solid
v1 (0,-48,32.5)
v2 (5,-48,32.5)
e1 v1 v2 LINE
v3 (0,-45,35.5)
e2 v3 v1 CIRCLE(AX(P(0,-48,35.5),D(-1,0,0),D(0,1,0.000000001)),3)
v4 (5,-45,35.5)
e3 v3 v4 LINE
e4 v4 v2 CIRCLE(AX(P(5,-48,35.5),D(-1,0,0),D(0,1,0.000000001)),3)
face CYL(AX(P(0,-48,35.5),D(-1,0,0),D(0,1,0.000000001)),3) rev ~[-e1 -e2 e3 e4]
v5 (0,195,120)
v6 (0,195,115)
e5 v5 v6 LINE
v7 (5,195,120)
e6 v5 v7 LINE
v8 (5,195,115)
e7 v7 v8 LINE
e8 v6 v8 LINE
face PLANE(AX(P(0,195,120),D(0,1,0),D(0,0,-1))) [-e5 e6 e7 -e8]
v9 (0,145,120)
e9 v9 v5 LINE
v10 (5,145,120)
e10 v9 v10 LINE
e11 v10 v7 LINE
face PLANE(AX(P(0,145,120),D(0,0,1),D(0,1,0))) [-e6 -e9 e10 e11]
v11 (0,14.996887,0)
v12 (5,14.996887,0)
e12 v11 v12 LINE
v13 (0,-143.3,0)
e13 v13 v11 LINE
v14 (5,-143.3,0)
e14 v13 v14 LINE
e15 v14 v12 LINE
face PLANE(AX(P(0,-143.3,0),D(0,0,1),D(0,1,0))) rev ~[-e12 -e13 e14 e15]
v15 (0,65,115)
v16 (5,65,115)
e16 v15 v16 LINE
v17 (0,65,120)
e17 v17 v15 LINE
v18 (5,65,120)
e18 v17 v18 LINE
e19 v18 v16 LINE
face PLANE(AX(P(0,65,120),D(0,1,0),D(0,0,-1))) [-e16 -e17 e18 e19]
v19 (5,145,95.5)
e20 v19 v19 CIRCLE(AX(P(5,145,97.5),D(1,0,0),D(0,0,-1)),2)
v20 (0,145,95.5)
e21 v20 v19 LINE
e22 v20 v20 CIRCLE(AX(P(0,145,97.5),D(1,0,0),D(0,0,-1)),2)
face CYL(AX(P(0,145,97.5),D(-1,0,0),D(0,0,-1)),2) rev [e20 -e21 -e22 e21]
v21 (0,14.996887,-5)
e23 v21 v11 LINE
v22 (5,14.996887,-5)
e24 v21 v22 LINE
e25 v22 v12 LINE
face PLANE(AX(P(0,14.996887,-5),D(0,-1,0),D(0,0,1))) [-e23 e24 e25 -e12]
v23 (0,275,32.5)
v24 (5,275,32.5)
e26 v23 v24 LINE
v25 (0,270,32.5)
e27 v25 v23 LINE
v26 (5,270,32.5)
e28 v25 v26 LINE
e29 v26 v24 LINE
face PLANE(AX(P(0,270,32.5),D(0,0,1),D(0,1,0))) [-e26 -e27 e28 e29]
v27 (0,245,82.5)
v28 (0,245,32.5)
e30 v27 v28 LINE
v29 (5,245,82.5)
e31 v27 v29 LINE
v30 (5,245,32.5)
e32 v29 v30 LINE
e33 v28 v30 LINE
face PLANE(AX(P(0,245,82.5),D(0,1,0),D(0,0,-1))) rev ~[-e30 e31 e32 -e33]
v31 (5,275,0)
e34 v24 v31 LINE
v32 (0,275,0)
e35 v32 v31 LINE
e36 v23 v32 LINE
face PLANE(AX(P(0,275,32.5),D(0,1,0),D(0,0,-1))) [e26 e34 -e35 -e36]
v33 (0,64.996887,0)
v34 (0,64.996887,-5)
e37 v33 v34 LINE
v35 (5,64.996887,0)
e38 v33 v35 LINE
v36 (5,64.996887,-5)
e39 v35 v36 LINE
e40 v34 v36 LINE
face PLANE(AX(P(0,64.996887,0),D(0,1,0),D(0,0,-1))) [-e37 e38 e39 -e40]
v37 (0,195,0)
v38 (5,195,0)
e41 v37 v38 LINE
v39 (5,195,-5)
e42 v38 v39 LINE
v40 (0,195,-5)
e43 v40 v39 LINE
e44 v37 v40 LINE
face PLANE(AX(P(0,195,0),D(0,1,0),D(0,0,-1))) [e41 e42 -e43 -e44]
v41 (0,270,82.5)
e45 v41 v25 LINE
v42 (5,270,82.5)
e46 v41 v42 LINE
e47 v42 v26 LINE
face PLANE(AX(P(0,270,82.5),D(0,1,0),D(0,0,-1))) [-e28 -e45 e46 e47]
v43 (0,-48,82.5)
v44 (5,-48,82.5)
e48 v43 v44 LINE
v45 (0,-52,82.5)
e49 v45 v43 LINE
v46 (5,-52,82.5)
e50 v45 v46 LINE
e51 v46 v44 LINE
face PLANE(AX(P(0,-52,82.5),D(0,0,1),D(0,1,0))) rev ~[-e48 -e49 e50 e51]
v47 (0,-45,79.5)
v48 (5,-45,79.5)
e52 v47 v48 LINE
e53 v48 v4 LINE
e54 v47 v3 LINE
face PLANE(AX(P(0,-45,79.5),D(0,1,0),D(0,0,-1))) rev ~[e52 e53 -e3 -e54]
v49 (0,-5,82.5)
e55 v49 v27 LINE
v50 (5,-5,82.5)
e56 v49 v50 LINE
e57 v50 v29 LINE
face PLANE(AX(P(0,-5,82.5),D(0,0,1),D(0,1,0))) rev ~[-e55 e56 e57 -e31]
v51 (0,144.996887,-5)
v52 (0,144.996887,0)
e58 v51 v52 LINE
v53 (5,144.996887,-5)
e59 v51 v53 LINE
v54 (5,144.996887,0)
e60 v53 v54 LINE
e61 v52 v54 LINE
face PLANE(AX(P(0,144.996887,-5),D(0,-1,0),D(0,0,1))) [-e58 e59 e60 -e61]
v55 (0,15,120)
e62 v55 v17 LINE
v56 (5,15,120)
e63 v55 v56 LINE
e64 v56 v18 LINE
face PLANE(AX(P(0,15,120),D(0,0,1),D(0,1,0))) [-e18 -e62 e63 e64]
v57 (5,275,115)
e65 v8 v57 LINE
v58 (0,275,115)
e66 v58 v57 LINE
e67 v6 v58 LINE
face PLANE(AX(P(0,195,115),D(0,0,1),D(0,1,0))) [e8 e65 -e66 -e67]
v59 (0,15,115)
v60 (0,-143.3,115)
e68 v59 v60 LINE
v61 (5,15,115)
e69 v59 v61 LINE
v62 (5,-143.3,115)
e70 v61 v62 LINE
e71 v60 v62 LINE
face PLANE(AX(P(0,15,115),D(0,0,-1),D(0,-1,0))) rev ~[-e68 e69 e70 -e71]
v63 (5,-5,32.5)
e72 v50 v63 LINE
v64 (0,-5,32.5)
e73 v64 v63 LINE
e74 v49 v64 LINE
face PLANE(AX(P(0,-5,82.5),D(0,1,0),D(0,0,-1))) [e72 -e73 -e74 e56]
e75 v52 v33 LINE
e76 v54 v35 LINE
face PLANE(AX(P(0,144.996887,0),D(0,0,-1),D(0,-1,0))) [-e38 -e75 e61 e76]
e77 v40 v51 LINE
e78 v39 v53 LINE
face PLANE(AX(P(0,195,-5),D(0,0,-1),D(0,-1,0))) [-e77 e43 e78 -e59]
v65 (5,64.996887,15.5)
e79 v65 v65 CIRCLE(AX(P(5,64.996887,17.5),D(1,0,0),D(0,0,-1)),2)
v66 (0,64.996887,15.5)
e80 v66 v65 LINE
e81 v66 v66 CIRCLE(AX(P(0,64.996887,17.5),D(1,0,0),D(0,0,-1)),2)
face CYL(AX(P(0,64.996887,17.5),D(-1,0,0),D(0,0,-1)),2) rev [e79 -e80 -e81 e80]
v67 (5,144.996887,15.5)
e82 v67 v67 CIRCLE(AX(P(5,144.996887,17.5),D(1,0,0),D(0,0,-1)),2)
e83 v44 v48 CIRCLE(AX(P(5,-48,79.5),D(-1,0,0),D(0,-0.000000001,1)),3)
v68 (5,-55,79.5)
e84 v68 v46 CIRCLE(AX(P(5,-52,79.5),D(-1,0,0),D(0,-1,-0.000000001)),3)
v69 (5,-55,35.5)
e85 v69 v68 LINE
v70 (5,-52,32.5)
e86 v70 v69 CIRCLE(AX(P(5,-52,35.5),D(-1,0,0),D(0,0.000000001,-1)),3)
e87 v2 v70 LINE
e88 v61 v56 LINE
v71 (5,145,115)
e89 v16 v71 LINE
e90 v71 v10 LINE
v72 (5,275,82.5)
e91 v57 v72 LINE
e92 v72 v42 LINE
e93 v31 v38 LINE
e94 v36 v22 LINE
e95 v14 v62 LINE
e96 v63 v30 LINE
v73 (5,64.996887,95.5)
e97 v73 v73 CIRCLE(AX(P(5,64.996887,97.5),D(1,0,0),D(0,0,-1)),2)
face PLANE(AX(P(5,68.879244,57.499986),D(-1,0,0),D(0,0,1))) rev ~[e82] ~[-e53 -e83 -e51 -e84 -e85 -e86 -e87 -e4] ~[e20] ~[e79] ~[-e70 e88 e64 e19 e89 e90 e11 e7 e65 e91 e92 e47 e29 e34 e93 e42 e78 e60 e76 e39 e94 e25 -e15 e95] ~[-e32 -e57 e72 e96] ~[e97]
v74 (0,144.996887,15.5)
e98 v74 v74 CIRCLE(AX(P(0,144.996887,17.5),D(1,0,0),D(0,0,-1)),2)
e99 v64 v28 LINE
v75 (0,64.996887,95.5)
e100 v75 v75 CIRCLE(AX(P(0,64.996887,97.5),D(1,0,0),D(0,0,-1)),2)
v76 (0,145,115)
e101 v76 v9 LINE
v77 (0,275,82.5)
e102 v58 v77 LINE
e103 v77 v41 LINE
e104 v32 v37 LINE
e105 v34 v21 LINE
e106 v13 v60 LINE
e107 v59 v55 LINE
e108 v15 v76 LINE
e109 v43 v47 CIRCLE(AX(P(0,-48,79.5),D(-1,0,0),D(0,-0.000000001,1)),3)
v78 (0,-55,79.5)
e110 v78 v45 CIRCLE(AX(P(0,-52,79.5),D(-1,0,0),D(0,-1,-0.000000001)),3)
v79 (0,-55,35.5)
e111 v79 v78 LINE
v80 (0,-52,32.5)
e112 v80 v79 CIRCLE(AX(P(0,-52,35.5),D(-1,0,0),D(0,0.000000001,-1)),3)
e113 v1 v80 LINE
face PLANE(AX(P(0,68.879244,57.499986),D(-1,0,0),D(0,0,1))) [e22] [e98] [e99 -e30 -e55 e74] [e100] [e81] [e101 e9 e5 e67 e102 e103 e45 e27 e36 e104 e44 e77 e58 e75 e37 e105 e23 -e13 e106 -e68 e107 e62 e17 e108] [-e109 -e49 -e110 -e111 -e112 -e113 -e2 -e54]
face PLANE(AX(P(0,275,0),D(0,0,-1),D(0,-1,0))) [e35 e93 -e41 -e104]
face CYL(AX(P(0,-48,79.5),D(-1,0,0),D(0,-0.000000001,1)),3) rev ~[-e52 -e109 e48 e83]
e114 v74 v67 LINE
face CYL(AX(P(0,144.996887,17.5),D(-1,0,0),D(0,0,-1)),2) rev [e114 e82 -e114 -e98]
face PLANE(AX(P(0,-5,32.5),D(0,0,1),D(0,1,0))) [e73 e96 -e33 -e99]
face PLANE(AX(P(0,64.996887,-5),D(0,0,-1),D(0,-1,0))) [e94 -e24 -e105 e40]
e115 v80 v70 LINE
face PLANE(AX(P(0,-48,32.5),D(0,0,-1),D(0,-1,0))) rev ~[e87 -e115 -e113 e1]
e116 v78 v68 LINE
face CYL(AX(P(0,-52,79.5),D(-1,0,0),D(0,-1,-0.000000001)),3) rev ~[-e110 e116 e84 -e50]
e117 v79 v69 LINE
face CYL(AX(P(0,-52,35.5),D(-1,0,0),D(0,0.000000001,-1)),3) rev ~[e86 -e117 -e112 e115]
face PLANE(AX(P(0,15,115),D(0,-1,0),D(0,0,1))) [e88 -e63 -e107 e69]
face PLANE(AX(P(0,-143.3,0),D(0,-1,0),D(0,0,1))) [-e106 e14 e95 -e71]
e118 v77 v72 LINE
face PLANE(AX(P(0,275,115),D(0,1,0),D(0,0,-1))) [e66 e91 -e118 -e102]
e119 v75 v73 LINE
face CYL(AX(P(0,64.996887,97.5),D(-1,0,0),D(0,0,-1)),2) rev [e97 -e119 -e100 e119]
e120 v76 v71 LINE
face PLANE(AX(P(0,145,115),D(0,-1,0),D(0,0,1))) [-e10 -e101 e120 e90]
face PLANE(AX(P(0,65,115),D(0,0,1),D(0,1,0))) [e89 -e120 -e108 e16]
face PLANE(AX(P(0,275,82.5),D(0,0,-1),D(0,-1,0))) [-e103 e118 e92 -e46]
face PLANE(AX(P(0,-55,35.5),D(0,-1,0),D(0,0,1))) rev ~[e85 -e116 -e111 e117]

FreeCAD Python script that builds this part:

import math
import FreeCAD as App
import Part
import Sketcher


def add_polygon(sketch, points):
    """Adds a closed chain of lines whose ends are joined by coincident constraints."""
    first, n = sketch.GeometryCount, len(points)
    for a, b in zip(points, points[1:] + points[:1]):
        sketch.addGeometry(Part.LineSegment(App.Vector(*a, 0), App.Vector(*b, 0)), False)
    for i in range(n):
        sketch.addConstraint(Sketcher.Constraint("Coincident", first + i, 2, first + (i + 1) % n, 1))

doc = App.newDocument("Part")
body = doc.addObject("PartDesign::Body", "Body")

sketch1 = doc.addObject("Sketcher::SketchObject", "Sketch")
body.addObject(sketch1)
sketch1.AttachmentSupport = (doc.YZ_Plane, [""])
sketch1.MapMode = "FlatFace"
add_polygon(sketch1, [(275, 115), (195, 115), (195, 120), (145, 120), (145, 115), (65, 115), (65, 120), (15, 120), (15, 115), (-143.3, 115), (-143.3, 0), (15, 0), (15, -5), (65, -5), (65, 0), (145, 0), (145, -5), (195, -5), (195, 0), (275, 0), (275, 32.5), (270, 32.5), (270, 82.5), (275, 82.5)])
sketch1.addGeometry(Part.Circle(App.Vector(65, 17.5, 0), App.Vector(0, 0, 1), 2), False)
sketch1.addGeometry(Part.LineSegment(App.Vector(-45, 79.5, 0), App.Vector(-45, 35.5, 0)), False)
sketch1.addGeometry(Part.ArcOfCircle(Part.Circle(App.Vector(-48, 35.5, 0), App.Vector(0, 0, 1), 3), math.radians(-90), math.radians(0)), False)
sketch1.addGeometry(Part.LineSegment(App.Vector(-48, 32.5, 0), App.Vector(-52, 32.5, 0)), False)
sketch1.addGeometry(Part.ArcOfCircle(Part.Circle(App.Vector(-52, 35.5, 0), App.Vector(0, 0, 1), 3), math.radians(180), math.radians(270)), False)
sketch1.addGeometry(Part.LineSegment(App.Vector(-55, 35.5, 0), App.Vector(-55, 79.5, 0)), False)
sketch1.addGeometry(Part.ArcOfCircle(Part.Circle(App.Vector(-52, 79.5, 0), App.Vector(0, 0, 1), 3), math.radians(90), math.radians(180)), False)
sketch1.addGeometry(Part.LineSegment(App.Vector(-52, 82.5, 0), App.Vector(-48, 82.5, 0)), False)
sketch1.addGeometry(Part.ArcOfCircle(Part.Circle(App.Vector(-48, 79.5, 0), App.Vector(0, 0, 1), 3), math.radians(0), math.radians(90)), False)
sketch1.addGeometry(Part.Circle(App.Vector(65, 97.5, 0), App.Vector(0, 0, 1), 2), False)
sketch1.addGeometry(Part.Circle(App.Vector(145, 17.5, 0), App.Vector(0, 0, 1), 2), False)
add_polygon(sketch1, [(-5, 82.5), (245, 82.5), (245, 32.5), (-5, 32.5)])
sketch1.addGeometry(Part.Circle(App.Vector(145, 97.5, 0), App.Vector(0, 0, 1), 2), False)
sketch1.addConstraint([
    Sketcher.Constraint("Tangent", 25, 2, 26, 2),
    Sketcher.Constraint("Tangent", 26, 1, 27, 1),
    Sketcher.Constraint("Tangent", 27, 2, 28, 2),
    Sketcher.Constraint("Tangent", 28, 1, 29, 1),
    Sketcher.Constraint("Tangent", 29, 2, 30, 2),
    Sketcher.Constraint("Tangent", 30, 1, 31, 1),
    Sketcher.Constraint("Tangent", 31, 2, 32, 2),
    Sketcher.Constraint("Tangent", 32, 1, 25, 1),
    Sketcher.Constraint("Horizontal", 0),
    Sketcher.Constraint("Vertical", 1),
    Sketcher.Constraint("Horizontal", 2),
    Sketcher.Constraint("Vertical", 3),
    Sketcher.Constraint("Horizontal", 4),
    Sketcher.Constraint("Vertical", 5),
    Sketcher.Constraint("Horizontal", 6),
    Sketcher.Constraint("Vertical", 7),
    Sketcher.Constraint("Horizontal", 8),
    Sketcher.Constraint("Vertical", 9),
    Sketcher.Constraint("Horizontal", 10),
    Sketcher.Constraint("Vertical", 11),
    Sketcher.Constraint("Horizontal", 12),
    Sketcher.Constraint("Vertical", 13),
    Sketcher.Constraint("Horizontal", 14),
    Sketcher.Constraint("Vertical", 15),
    Sketcher.Constraint("Horizontal", 16),
    Sketcher.Constraint("Vertical", 17),
    Sketcher.Constraint("Horizontal", 18),
    Sketcher.Constraint("Vertical", 19),
    Sketcher.Constraint("Horizontal", 20),
    Sketcher.Constraint("Vertical", 21),
    Sketcher.Constraint("Horizontal", 22),
    Sketcher.Constraint("Vertical", 23),
    Sketcher.Constraint("Vertical", 25),
    Sketcher.Constraint("Horizontal", 27),
    Sketcher.Constraint("Vertical", 29),
    Sketcher.Constraint("Horizontal", 31),
    Sketcher.Constraint("Horizontal", 35),
    Sketcher.Constraint("Vertical", 36),
    Sketcher.Constraint("Horizontal", 37),
    Sketcher.Constraint("Vertical", 38),
    Sketcher.Constraint("Equal", 26, 28),
    Sketcher.Constraint("Equal", 28, 30),
    Sketcher.Constraint("Equal", 30, 32),
    Sketcher.Constraint("Equal", 24, 33),
    Sketcher.Constraint("Equal", 33, 34),
    Sketcher.Constraint("Equal", 34, 39),
    Sketcher.Constraint("PointOnObject", 9, 2, -1),
    Sketcher.Constraint("PointOnObject", 13, 2, -1),
    Sketcher.Constraint("PointOnObject", 17, 2, -1),
    Sketcher.Constraint("Horizontal", 24, 3, 34, 3),
    Sketcher.Constraint("Horizontal", 33, 3, 39, 3),
    Sketcher.Constraint("Horizontal", 0, 2, 3, 2),
    Sketcher.Constraint("Horizontal", 2, 2, 5, 2),
    Sketcher.Constraint("Horizontal", 4, 2, 7, 2),
    Sketcher.Constraint("Horizontal", 12, 2, 15, 2),
    Sketcher.Constraint("Horizontal", 20, 2, 26, 1),
    Sketcher.Constraint("Horizontal", 22, 2, 30, 1),
    Sketcher.Constraint("Horizontal", 31, 2, 35, 2),
    Sketcher.Constraint("Horizontal", 27, 2, 36, 2),
    Sketcher.Constraint("Vertical", 24, 3, 33, 3),
    Sketcher.Constraint("Vertical", 39, 3, 2, 2),
    Sketcher.Constraint("Vertical", 33, 3, 12, 2),
    Sketcher.Constraint("Vertical", 34, 3, 14, 2),
    Sketcher.Constraint("Vertical", 1, 2, 16, 2),
    Sketcher.Constraint("Vertical", 19, 2, 22, 2),
    Sketcher.Constraint("Equal", 0, 4),
    Sketcher.Constraint("Equal", 2, 6),
    Sketcher.Constraint("Equal", 6, 12),
    Sketcher.Constraint("Equal", 4, 14),
    Sketcher.Constraint("Equal", 22, 1),
    Sketcher.Constraint("Equal", 7, 11),
    Sketcher.Constraint("Equal", 12, 21),
    Sketcher.Constraint("Equal", 19, 23),
    Sketcher.Constraint("Diameter", 24, 4.0),
    Sketcher.Constraint("Radius", 26, 3.0),
    Sketcher.Constraint("DistanceX", 0, 2, 0, 1, 80.0),
    Sketcher.Constraint("DistanceX", 2, 2, 2, 1, 50.0),
    Sketcher.Constraint("DistanceX", 20, 2, 20, 1, 5.0),
    Sketcher.Constraint("DistanceX", 27, 2, 27, 1, 4.0),
    Sketcher.Constraint("DistanceX", 35, 1, 35, 2, 250.0),
    Sketcher.Constraint("DistanceY", 9, 2, 9, 1, 115.0),
    Sketcher.Constraint("DistanceX", 8, 2, 8, 1, 158.3),
    Sketcher.Constraint("DistanceX", 26, 3, -1, 1, 48.0),
    Sketcher.Constraint("DistanceX", -1, 1, 39, 3, 145.0),
    Sketcher.Constraint("DistanceX", -1, 1, 35, 2, 245.0),
    Sketcher.Constraint("DistanceY", 24, 3, 26, 3, 18.0),
    Sketcher.Constraint("DistanceY", 24, 3, 33, 3, 80.0),
    Sketcher.Constraint("DistanceX", 10, 1, 10, 2, 158.296887),
])
pad1 = doc.addObject("PartDesign::Pad", "Pad")
body.addObject(pad1)
pad1.Profile = sketch1
pad1.Length = 5

doc.recompute()
